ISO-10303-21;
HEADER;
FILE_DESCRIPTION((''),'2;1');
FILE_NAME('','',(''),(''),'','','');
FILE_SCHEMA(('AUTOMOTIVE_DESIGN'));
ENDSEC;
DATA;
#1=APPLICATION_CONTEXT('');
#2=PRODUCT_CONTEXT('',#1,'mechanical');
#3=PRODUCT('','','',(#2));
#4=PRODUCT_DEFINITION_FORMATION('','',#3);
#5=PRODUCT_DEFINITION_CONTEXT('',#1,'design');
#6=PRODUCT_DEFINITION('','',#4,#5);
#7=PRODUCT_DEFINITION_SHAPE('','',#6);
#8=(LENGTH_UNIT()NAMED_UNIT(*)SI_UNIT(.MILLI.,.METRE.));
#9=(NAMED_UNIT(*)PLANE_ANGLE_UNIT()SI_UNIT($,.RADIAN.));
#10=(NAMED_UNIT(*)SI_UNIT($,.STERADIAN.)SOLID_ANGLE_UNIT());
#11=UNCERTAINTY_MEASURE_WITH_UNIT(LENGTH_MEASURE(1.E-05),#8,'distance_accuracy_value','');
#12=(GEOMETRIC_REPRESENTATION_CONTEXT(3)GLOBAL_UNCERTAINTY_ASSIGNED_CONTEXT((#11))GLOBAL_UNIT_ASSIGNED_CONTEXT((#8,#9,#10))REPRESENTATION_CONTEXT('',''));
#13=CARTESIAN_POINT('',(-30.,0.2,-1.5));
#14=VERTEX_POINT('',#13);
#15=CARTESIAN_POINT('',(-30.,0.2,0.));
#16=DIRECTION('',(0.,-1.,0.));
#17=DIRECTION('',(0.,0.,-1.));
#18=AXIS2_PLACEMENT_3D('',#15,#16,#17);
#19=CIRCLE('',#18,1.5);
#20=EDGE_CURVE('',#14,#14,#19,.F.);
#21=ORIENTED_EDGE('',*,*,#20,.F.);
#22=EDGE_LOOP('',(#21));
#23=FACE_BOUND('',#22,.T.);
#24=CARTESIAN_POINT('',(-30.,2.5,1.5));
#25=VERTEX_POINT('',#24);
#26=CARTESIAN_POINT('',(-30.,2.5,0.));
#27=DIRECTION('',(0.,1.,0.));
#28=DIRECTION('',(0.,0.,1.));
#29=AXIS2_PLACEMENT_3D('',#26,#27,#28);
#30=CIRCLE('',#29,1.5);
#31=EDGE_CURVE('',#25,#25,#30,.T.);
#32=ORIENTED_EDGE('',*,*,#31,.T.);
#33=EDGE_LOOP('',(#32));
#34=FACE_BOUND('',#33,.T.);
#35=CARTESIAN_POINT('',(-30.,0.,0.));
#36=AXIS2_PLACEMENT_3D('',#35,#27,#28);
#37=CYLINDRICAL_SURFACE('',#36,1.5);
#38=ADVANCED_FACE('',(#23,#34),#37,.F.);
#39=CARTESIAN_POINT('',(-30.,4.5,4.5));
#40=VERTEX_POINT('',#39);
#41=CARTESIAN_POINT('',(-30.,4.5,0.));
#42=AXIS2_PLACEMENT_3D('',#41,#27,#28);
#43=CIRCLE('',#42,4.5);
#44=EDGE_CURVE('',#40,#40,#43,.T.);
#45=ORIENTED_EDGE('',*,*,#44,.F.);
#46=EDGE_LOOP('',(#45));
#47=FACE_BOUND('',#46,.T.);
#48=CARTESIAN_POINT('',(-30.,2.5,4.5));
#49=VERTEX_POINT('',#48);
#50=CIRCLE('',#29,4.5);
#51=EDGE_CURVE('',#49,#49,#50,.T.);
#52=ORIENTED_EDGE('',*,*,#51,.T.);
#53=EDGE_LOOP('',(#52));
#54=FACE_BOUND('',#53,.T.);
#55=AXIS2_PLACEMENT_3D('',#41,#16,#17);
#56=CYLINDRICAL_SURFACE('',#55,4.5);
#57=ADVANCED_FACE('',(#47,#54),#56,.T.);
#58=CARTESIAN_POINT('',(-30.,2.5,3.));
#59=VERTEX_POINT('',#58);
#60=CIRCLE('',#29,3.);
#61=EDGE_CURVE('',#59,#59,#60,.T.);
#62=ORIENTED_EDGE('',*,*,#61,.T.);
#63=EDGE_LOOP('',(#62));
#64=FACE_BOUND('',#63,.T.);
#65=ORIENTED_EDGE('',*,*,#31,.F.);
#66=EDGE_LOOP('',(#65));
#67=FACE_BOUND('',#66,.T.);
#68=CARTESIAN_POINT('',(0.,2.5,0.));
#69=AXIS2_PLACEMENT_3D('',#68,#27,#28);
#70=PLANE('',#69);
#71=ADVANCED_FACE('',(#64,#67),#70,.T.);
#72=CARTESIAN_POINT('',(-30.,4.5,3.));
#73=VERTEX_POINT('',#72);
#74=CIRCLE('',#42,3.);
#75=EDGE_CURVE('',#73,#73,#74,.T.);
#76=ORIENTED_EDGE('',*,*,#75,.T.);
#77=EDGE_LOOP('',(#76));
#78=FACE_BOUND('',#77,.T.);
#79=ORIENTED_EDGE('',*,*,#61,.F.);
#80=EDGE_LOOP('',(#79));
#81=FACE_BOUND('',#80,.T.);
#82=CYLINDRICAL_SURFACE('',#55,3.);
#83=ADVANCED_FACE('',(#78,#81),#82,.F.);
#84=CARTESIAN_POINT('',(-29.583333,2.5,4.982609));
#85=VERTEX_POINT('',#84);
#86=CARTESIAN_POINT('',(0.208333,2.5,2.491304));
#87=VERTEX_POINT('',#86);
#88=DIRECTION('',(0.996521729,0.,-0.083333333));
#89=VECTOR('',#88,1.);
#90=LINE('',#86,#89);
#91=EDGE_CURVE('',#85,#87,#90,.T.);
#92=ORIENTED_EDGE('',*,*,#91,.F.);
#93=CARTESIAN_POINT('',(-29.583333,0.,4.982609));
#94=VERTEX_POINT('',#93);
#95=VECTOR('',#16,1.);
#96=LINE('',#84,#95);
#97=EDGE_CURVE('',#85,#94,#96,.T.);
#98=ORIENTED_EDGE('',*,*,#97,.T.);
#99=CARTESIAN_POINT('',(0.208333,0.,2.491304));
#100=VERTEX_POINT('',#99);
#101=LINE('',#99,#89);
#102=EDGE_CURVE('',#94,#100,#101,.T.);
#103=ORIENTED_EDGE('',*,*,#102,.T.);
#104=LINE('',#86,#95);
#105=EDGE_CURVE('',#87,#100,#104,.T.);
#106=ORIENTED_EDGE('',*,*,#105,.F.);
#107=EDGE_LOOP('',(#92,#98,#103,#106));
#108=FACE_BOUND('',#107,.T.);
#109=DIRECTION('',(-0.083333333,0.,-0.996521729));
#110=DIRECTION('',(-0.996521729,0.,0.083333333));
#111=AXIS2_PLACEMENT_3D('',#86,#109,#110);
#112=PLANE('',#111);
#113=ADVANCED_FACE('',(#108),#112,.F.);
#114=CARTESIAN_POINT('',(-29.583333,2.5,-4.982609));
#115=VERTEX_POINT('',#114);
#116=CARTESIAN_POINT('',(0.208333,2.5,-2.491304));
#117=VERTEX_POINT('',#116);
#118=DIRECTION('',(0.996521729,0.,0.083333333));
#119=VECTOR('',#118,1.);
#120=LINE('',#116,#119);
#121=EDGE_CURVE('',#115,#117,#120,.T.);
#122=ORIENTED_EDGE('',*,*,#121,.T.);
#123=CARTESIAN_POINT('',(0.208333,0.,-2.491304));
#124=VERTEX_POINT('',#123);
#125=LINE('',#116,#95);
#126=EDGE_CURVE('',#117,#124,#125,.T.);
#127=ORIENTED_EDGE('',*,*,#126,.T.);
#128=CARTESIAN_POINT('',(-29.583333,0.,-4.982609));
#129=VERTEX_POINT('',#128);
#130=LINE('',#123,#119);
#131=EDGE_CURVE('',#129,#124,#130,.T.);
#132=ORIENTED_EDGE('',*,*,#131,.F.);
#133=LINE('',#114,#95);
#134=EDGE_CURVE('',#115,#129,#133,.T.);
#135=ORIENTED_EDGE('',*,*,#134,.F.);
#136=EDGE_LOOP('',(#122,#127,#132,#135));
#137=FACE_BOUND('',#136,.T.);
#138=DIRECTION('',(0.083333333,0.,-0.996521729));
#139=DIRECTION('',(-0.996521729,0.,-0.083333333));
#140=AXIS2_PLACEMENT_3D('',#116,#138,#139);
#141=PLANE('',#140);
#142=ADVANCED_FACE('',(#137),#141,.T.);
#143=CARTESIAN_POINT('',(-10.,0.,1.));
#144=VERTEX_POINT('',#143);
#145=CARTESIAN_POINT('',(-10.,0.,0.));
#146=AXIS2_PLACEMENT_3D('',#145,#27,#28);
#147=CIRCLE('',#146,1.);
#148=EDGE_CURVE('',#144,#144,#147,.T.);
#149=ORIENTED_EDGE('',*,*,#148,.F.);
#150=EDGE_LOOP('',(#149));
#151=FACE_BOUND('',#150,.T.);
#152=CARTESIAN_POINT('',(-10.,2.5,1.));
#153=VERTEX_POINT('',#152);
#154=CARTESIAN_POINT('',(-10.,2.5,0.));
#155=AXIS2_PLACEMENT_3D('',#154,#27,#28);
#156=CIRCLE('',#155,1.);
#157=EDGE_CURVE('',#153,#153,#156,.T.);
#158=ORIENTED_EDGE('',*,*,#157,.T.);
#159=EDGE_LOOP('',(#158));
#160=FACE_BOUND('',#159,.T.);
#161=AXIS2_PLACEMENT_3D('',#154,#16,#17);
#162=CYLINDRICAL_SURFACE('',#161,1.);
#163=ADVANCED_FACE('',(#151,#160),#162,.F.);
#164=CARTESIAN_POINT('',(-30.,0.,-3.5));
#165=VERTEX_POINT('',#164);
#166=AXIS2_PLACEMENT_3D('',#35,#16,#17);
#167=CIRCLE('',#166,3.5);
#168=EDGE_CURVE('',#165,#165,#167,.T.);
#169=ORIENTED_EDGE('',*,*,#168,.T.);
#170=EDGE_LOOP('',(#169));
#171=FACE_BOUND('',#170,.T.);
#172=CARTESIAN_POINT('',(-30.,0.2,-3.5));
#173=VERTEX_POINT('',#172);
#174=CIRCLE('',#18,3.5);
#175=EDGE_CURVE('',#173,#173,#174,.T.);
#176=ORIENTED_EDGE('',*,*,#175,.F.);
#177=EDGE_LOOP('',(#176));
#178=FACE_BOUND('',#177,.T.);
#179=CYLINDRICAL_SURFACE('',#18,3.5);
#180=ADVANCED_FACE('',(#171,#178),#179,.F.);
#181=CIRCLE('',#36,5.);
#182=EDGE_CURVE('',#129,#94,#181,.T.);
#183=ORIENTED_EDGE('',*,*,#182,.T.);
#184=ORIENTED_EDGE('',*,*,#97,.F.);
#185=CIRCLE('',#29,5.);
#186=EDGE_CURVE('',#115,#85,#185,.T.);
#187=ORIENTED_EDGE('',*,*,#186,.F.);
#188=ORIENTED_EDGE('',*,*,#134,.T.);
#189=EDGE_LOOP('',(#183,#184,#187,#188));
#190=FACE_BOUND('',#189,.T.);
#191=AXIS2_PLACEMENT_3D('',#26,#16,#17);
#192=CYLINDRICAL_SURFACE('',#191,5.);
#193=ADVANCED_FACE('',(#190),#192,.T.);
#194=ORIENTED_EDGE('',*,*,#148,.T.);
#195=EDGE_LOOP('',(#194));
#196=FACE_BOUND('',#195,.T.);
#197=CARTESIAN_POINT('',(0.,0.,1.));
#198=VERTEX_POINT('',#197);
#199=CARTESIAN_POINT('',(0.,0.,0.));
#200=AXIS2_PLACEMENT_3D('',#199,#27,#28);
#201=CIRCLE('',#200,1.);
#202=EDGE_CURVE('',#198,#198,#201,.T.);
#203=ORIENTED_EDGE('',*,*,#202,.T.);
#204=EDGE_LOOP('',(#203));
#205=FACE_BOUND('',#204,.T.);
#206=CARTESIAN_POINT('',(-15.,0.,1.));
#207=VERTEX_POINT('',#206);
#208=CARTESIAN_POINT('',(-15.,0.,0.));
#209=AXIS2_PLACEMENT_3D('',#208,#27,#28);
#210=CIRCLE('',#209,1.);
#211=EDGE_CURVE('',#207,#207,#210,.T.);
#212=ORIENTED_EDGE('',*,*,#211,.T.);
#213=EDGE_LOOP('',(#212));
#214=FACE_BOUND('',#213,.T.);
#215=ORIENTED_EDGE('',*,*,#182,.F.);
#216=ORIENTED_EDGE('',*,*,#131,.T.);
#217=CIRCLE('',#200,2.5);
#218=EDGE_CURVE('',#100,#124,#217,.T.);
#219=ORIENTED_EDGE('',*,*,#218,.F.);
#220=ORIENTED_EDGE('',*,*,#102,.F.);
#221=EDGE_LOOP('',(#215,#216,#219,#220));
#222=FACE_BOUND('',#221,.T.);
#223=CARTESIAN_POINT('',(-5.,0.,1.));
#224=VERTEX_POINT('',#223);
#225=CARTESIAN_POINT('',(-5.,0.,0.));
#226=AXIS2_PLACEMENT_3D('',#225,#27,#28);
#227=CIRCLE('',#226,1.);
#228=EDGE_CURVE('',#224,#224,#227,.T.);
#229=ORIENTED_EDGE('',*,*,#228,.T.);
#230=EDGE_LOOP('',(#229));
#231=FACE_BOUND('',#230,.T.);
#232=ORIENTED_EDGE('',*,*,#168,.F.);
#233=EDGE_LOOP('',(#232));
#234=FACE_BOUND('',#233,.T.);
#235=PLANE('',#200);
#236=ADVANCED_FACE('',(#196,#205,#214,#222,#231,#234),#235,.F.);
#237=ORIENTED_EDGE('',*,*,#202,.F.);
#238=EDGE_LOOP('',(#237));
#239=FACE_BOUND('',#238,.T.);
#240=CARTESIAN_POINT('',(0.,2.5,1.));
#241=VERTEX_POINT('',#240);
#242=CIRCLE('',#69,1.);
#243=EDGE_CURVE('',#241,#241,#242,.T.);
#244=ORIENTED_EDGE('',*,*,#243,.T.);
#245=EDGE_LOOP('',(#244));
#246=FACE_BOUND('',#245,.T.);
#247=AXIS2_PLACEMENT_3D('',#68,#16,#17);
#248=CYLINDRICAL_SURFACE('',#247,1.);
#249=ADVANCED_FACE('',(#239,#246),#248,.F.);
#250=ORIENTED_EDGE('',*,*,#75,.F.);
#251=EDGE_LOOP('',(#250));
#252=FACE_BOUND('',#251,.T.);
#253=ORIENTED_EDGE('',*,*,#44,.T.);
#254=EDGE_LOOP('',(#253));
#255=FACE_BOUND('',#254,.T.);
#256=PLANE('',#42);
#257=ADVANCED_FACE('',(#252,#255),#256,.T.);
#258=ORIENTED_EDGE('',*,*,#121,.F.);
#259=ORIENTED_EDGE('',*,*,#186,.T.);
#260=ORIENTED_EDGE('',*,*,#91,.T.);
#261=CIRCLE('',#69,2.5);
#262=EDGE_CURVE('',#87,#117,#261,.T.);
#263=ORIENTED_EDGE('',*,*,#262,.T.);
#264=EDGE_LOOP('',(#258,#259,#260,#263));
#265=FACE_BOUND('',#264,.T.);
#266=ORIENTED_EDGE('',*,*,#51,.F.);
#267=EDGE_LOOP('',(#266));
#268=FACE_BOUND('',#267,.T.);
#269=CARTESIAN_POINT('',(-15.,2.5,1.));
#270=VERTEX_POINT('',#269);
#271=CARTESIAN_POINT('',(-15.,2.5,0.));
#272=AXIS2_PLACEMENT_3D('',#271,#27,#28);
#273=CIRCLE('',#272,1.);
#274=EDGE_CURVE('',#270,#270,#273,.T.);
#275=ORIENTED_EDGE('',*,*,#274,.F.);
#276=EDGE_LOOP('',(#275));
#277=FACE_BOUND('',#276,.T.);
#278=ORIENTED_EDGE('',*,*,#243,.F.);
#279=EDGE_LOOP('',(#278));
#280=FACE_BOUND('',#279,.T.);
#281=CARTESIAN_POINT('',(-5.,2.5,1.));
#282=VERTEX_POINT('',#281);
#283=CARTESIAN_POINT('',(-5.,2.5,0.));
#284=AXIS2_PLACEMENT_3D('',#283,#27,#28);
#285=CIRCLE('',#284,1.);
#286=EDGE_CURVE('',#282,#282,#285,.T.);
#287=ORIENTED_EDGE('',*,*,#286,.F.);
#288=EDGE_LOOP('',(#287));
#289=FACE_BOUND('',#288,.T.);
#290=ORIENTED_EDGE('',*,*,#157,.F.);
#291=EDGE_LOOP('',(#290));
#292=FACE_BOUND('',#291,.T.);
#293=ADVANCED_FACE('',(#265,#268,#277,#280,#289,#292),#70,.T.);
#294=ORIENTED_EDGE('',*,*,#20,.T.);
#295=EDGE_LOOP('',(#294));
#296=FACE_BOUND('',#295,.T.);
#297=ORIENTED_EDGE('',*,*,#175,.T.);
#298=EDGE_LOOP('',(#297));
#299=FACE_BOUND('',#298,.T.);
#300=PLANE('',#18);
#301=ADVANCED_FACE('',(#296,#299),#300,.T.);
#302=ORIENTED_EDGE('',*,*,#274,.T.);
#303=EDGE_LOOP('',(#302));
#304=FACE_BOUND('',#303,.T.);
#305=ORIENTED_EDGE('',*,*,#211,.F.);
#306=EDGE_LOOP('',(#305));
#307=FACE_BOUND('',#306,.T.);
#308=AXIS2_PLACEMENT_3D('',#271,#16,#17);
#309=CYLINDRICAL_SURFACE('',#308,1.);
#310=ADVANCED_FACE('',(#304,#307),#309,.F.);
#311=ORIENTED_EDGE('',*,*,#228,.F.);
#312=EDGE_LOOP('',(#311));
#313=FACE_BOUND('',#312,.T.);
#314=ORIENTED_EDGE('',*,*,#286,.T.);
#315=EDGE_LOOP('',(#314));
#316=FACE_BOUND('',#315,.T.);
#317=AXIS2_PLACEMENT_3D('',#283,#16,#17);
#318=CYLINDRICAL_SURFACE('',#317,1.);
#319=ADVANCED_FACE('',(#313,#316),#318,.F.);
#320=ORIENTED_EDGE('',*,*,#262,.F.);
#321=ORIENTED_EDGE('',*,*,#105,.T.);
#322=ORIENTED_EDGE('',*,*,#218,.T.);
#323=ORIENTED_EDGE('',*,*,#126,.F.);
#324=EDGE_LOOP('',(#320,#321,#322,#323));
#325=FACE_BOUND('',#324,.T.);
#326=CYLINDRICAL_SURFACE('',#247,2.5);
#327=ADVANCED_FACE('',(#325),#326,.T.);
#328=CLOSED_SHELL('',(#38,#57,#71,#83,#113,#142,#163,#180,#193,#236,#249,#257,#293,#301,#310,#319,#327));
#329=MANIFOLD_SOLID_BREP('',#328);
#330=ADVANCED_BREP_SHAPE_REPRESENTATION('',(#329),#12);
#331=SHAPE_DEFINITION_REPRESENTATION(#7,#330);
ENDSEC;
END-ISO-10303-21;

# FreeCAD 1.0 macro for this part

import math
import FreeCAD as App
import Part
import Sketcher
from FreeCAD import Vector
Q = App.Units.Quantity

doc = App.newDocument("Part")
body = doc.addObject("PartDesign::Body", "Body")

# Sketch on XZ plane
sketch1 = body.newObject("Sketcher::SketchObject", "Sketch")
sketch1.AttachmentSupport = (doc.getObject("XZ_Plane"), [""])
sketch1.MapMode = "FlatFace"
sketch1.addGeometry(Part.LineSegment(Vector(0.208333, -2.491304, 0), Vector(-29.583333, -4.982609, 0)), False)
sketch1.addGeometry(Part.ArcOfCircle(Part.Circle(Vector(-30, 0, 0), Vector(0, 0, 1), 5), math.radians(85.219808), math.radians(274.780192)), False)
sketch1.addGeometry(Part.LineSegment(Vector(-29.583333, 4.982609, 0), Vector(0.208333, 2.491304, 0)), False)
sketch1.addGeometry(Part.ArcOfCircle(Part.Circle(Vector(0, 0, 0), Vector(0, 0, 1), 2.5), math.radians(-85.219808), math.radians(85.219808)), False)
sketch1.addGeometry(Part.Circle(Vector(-15, 0, 0), Vector(0, 0, 1), 1), False)
sketch1.addGeometry(Part.Circle(Vector(-10, 0, 0), Vector(0, 0, 1), 1), False)
sketch1.addGeometry(Part.Circle(Vector(-5, 0, 0), Vector(0, 0, 1), 1), False)
sketch1.addGeometry(Part.Circle(Vector(0, 0, 0), Vector(0, 0, 1), 1), False)
sketch1.addConstraint(Sketcher.Constraint("Tangent", 0, 2, 1, 2))
sketch1.addConstraint(Sketcher.Constraint("Tangent", 1, 1, 2, 1))
sketch1.addConstraint(Sketcher.Constraint("Tangent", 2, 2, 3, 2))
sketch1.addConstraint(Sketcher.Constraint("Tangent", 3, 1, 0, 1))
sketch1.addConstraint(Sketcher.Constraint("Coincident", 3, 3, -1, 1))
sketch1.addConstraint(Sketcher.Constraint("Coincident", 7, 3, -1, 1))
sketch1.addConstraint(Sketcher.Constraint("Equal", 4, 5))
sketch1.addConstraint(Sketcher.Constraint("Equal", 5, 6))
sketch1.addConstraint(Sketcher.Constraint("Equal", 6, 7))
sketch1.addConstraint(Sketcher.Constraint("PointOnObject", 1, 3, -1))
sketch1.addConstraint(Sketcher.Constraint("PointOnObject", 4, 3, -1))
sketch1.addConstraint(Sketcher.Constraint("PointOnObject", 5, 3, -1))
sketch1.addConstraint(Sketcher.Constraint("PointOnObject", 6, 3, -1))
sketch1.addConstraint(Sketcher.Constraint("Diameter", 4, Q("2 mm")))
sketch1.addConstraint(Sketcher.Constraint("Radius", 1, Q("5 mm")))
sketch1.addConstraint(Sketcher.Constraint("Radius", 3, Q("2.5 mm")))
sketch1.addConstraint(Sketcher.Constraint("DistanceX", 1, 3, -1, 1, Q("30 mm")))
sketch1.addConstraint(Sketcher.Constraint("DistanceX", 4, 3, -1, 1, Q("15 mm")))
sketch1.addConstraint(Sketcher.Constraint("DistanceX", 5, 3, -1, 1, Q("10 mm")))
sketch1.addConstraint(Sketcher.Constraint("DistanceX", 6, 3, -1, 1, Q("5 mm")))
pad1 = body.newObject("PartDesign::Pad", "Pad")
pad1.Profile = sketch1
pad1.Length = 2.5
pad1.Reversed = True

# Sketch on XZ plane
sketch2 = body.newObject("Sketcher::SketchObject", "Sketch001")
sketch2.AttachmentSupport = (doc.getObject("XZ_Plane"), [""])
sketch2.MapMode = "FlatFace"
sketch2.AttachmentOffset = App.Placement(Vector(0, 0, -2.5), App.Rotation())
sketch2.addGeometry(Part.Circle(Vector(-30, 0, 0), Vector(0, 0, 1), 4.5), False)
sketch2.addGeometry(Part.Circle(Vector(-30, 0, 0), Vector(0, 0, 1), 3), False)
sketch2.addConstraint(Sketcher.Constraint("Coincident", 1, 3, 0, 3))
sketch2.addConstraint(Sketcher.Constraint("PointOnObject", 0, 3, -1))
sketch2.addConstraint(Sketcher.Constraint("Diameter", 0, Q("9 mm")))
sketch2.addConstraint(Sketcher.Constraint("Diameter", 1, Q("6 mm")))
sketch2.addConstraint(Sketcher.Constraint("DistanceX", 0, 3, -1, 1, Q("30 mm")))
pad2 = body.newObject("PartDesign::Pad", "Pad001")
pad2.Profile = sketch2
pad2.Length = 2
pad2.Reversed = True

# Sketch on XZ plane
sketch3 = body.newObject("Sketcher::SketchObject", "Sketch002")
sketch3.AttachmentSupport = (doc.getObject("XZ_Plane"), [""])
sketch3.MapMode = "FlatFace"
sketch3.AttachmentOffset = App.Placement(Vector(0, 0, -2.5), App.Rotation())
sketch3.addGeometry(Part.Circle(Vector(-30, 0, 0), Vector(0, 0, 1), 1.5), False)
sketch3.addConstraint(Sketcher.Constraint("PointOnObject", 0, 3, -1))
sketch3.addConstraint(Sketcher.Constraint("Diameter", 0, Q("3 mm")))
sketch3.addConstraint(Sketcher.Constraint("DistanceX", 0, 3, -1, 1, Q("30 mm")))
pocket1 = body.newObject("PartDesign::Pocket", "Pocket")
pocket1.Profile = sketch3
pocket1.Type = "ThroughAll"
pocket1.Reversed = True

# Sketch on XZ plane
sketch4 = body.newObject("Sketcher::SketchObject", "Sketch003")
sketch4.AttachmentSupport = (doc.getObject("XZ_Plane"), [""])
sketch4.MapMode = "FlatFace"
sketch4.addGeometry(Part.Circle(Vector(-30, 0, 0), Vector(0, 0, 1), 3.5), False)
sketch4.addConstraint(Sketcher.Constraint("PointOnObject", 0, 3, -1))
sketch4.addConstraint(Sketcher.Constraint("Diameter", 0, Q("7 mm")))
sketch4.addConstraint(Sketcher.Constraint("DistanceX", 0, 3, -1, 1, Q("30 mm")))
pocket2 = body.newObject("PartDesign::Pocket", "Pocket001")
pocket2.Profile = sketch4
pocket2.Length = 0.2

doc.recompute()
